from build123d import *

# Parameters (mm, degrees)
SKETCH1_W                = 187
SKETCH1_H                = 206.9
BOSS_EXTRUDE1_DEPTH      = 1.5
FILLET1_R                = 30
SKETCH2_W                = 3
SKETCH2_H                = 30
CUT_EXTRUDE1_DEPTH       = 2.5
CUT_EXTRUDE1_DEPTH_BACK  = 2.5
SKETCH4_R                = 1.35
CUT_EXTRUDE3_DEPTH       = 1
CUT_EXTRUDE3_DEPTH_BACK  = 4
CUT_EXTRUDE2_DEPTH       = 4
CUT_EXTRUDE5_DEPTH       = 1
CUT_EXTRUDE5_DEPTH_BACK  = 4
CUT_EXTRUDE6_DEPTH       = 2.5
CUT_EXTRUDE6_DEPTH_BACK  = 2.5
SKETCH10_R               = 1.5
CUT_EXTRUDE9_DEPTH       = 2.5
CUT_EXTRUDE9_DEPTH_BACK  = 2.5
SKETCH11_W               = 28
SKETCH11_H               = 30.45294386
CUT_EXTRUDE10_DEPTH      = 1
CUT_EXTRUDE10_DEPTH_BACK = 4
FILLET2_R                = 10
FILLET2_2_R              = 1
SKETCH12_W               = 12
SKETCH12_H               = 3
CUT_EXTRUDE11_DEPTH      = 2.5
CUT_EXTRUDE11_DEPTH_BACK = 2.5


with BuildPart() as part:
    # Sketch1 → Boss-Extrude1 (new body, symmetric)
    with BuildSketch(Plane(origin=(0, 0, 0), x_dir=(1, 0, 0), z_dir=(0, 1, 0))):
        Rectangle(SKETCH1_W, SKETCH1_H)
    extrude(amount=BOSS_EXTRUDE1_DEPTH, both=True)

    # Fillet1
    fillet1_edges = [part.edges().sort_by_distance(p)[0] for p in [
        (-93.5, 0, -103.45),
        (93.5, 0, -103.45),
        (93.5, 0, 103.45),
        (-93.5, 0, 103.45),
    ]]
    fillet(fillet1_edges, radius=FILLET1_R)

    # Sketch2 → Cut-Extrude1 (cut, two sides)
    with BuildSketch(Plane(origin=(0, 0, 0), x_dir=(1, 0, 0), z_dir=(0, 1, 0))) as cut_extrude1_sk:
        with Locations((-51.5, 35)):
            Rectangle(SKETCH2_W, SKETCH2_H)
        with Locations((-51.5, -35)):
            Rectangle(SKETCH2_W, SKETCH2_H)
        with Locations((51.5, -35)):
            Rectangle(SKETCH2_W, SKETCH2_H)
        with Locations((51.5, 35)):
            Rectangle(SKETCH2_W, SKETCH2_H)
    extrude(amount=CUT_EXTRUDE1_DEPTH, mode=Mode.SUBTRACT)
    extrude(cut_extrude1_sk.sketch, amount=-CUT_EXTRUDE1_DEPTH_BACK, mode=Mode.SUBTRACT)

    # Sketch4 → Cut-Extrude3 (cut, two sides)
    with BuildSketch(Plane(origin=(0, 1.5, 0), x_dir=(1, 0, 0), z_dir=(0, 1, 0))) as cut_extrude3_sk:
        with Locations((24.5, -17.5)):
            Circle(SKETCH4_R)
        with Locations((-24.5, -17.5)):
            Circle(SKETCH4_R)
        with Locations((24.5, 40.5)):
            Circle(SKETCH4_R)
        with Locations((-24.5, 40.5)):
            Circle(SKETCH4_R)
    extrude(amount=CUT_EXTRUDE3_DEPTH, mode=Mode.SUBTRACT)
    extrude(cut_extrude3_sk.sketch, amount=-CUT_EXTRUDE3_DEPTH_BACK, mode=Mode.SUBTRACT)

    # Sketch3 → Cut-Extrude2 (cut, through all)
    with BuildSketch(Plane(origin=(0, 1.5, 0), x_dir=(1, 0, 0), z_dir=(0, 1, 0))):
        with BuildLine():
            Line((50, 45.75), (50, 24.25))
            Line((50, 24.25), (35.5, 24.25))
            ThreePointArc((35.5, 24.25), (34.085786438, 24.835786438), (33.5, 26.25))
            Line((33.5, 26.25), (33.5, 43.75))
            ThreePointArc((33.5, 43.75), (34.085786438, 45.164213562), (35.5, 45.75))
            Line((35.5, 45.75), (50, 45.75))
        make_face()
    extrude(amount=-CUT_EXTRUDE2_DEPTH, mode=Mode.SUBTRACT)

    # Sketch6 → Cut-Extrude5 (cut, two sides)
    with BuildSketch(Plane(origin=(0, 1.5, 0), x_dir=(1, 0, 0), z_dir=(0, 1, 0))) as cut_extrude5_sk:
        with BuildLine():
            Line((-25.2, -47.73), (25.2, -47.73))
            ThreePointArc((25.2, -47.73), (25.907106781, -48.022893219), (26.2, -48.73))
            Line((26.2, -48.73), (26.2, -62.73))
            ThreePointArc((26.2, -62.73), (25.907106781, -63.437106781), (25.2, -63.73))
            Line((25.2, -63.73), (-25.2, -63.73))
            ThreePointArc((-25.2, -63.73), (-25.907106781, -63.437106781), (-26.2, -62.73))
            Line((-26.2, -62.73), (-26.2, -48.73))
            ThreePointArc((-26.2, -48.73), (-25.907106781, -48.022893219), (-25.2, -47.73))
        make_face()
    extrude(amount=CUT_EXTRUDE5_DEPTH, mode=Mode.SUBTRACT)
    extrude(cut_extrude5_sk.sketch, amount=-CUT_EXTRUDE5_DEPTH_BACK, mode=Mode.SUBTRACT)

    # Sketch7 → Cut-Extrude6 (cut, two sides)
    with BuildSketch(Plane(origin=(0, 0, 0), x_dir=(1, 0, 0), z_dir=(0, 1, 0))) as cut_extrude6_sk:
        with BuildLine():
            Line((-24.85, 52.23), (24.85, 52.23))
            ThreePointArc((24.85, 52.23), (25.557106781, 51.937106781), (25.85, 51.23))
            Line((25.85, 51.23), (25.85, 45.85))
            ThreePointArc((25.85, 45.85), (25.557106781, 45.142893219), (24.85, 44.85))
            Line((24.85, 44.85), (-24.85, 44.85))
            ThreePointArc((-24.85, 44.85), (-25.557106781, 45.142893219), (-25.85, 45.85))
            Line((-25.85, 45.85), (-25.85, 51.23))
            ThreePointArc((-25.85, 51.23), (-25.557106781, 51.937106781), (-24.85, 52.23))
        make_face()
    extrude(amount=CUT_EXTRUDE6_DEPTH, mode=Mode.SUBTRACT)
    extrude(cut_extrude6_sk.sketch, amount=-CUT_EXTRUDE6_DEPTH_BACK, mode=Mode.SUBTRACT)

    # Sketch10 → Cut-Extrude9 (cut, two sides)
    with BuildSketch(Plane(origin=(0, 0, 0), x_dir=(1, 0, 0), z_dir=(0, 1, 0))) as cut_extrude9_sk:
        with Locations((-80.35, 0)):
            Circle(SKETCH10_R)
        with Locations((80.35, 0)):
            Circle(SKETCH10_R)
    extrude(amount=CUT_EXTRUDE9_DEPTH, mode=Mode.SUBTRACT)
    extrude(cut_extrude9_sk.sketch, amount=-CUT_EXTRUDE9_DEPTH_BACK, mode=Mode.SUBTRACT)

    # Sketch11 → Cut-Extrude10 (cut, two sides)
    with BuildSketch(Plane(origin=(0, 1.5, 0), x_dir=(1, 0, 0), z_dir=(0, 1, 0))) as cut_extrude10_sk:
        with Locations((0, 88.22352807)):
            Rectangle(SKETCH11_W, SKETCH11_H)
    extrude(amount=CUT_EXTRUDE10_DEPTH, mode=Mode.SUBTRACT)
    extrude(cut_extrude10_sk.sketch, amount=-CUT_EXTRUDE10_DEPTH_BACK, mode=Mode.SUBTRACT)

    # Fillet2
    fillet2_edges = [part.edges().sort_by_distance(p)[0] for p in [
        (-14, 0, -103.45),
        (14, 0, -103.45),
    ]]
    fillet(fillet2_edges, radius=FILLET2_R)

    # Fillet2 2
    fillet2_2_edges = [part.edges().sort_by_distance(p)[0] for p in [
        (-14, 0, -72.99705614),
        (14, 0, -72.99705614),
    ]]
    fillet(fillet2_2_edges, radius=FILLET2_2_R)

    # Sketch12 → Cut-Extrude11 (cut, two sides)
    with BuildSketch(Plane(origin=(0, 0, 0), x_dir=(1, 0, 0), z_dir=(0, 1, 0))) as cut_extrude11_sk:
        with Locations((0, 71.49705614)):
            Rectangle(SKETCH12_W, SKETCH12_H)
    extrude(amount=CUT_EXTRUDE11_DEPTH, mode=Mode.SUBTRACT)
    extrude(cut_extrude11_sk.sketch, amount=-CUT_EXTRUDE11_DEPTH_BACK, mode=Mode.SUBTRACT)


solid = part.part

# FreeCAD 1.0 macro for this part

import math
import FreeCAD as App
import Part
import Sketcher

V = App.Vector


def edges_at(feature, points):
    """Names of the edges that pass closest to the given points."""
    edges = feature.Shape.Edges
    near = lambda p: min(range(len(edges)), key=lambda i: edges[i].distToShape(Part.Vertex(*p))[0])
    return sorted({f"Edge{near(p) + 1}" for p in points})


def add_polygon(sketch, points):
    """Adds a closed chain of lines whose ends are joined by coincident constraints."""
    first, n = sketch.GeometryCount, len(points)
    for a, b in zip(points, points[1:] + points[:1]):
        sketch.addGeometry(Part.LineSegment(App.Vector(*a, 0), App.Vector(*b, 0)), False)
    for i in range(n):
        sketch.addConstraint(Sketcher.Constraint("Coincident", first + i, 2, first + (i + 1) % n, 1))

doc = App.newDocument("Part")
body = doc.addObject("PartDesign::Body", "Body")

sketch1 = body.newObject("Sketcher::SketchObject", "Sketch")
sketch1.AttachmentSupport = (doc.getObject("XZ_Plane"), [""])
sketch1.MapMode = "FlatFace"
add_polygon(sketch1, [(-94, -103), (-94, 103), (94, 103), (94, -103)])
sketch1.addConstraint([
    Sketcher.Constraint("Vertical", 0),
    Sketcher.Constraint("Horizontal", 1),
    Sketcher.Constraint("Vertical", 2),
    Sketcher.Constraint("Horizontal", 3),
    Sketcher.Constraint("Symmetric", 0, 2, 2, 2, -1, 1),
    Sketcher.Constraint("DistanceX", 1, 1, 1, 2, 187.0),
    Sketcher.Constraint("DistanceY", 0, 1, 0, 2, 206.9),
])
pad1 = body.newObject("PartDesign::Pad", "Pad")
pad1.Profile = sketch1
pad1.Length = 3
pad1.Midplane = True
doc.recompute()

fillet = body.newObject("PartDesign::Fillet", "Fillet")
fillet.Base = (pad1, edges_at(pad1, [
    (-93.5, 0, -103.45),
    (93.5, 0, -103.45),
    (93.5, 0, 103.45),
    (-93.5, 0, 103.45),
]))
fillet.Radius = 30

sketch2 = body.newObject("Sketcher::SketchObject", "Sketch001")
sketch2.AttachmentSupport = (doc.getObject("XZ_Plane"), [""])
sketch2.MapMode = "FlatFace"
add_polygon(sketch2, [(-53, -50), (-53, -20), (-50, -20), (-50, -50)])
add_polygon(sketch2, [(-53, 20), (-53, 50), (-50, 50), (-50, 20)])
add_polygon(sketch2, [(50, 20), (50, 50), (53, 50), (53, 20)])
add_polygon(sketch2, [(50, -50), (50, -20), (53, -20), (53, -50)])
sketch2.addConstraint([
    Sketcher.Constraint("Vertical", 0),
    Sketcher.Constraint("Horizontal", 1),
    Sketcher.Constraint("Vertical", 2),
    Sketcher.Constraint("Horizontal", 3),
    Sketcher.Constraint("Vertical", 4),
    Sketcher.Constraint("Horizontal", 5),
    Sketcher.Constraint("Vertical", 6),
    Sketcher.Constraint("Horizontal", 7),
    Sketcher.Constraint("Vertical", 8),
    Sketcher.Constraint("Horizontal", 9),
    Sketcher.Constraint("Vertical", 10),
    Sketcher.Constraint("Horizontal", 11),
    Sketcher.Constraint("Vertical", 12),
    Sketcher.Constraint("Horizontal", 13),
    Sketcher.Constraint("Vertical", 14),
    Sketcher.Constraint("Horizontal", 15),
    Sketcher.Constraint("Symmetric", 2, 2, 8, 2, -1, 1),
    Sketcher.Constraint("Symmetric", 0, 2, 10, 2, -1, 1),
    Sketcher.Constraint("Symmetric", 6, 2, 12, 2, -1, 1),
    Sketcher.Constraint("Symmetric", 4, 2, 14, 2, -1, 1),
    Sketcher.Constraint("Symmetric", 5, 2, 8, 2, -2),
    Sketcher.Constraint("Symmetric", 7, 2, 10, 2, -2),
    Sketcher.Constraint("DistanceX", 1, 1, 1, 2, 3.0),
    Sketcher.Constraint("DistanceY", 0, 1, 0, 2, 30.0),
    Sketcher.Constraint("DistanceX", 0, 2, -1, 1, 53.0),
    Sketcher.Constraint("DistanceY", 0, 2, -1, 1, 20.0),
])
pocket1 = body.newObject("PartDesign::Pocket", "Pocket")
pocket1.Profile = sketch2
pocket1.Type = "ThroughAll"
pocket1.Midplane = True

sketch3 = body.newObject("Sketcher::SketchObject", "Sketch002")
sketch3.AttachmentSupport = (doc.getObject("XZ_Plane"), [""])
sketch3.MapMode = "FlatFace"
sketch3.AttachmentOffset = App.Placement(V(0, 0, -1.5), App.Rotation())
sketch3.addGeometry([
    Part.Circle(V(24.5, 17.5, 0), V(0, 0, 1), 1.4),
    Part.Circle(V(-24.5, 17.5, 0), V(0, 0, 1), 1.4),
    Part.Circle(V(24.5, -40.5, 0), V(0, 0, 1), 1.4),
    Part.Circle(V(-24.5, -40.5, 0), V(0, 0, 1), 1.4),
], False)
sketch3.addConstraint([
    Sketcher.Constraint("Equal", 0, 1),
    Sketcher.Constraint("Equal", 1, 2),
    Sketcher.Constraint("Equal", 2, 3),
    Sketcher.Constraint("Symmetric", 0, 3, 1, 3, -2),
    Sketcher.Constraint("Symmetric", 2, 3, 3, 3, -2),
    Sketcher.Constraint("Vertical", 0, 3, 2, 3),
    Sketcher.Constraint("Diameter", 0, 2.7),
    Sketcher.Constraint("DistanceX", 1, 3, 0, 3, 49.0),
    Sketcher.Constraint("DistanceY", 2, 3, 0, 3, 58.0),
    Sketcher.Constraint("DistanceY", -1, 1, 0, 3, 17.5),
])
pocket2 = body.newObject("PartDesign::Pocket", "Pocket001")
pocket2.Profile = sketch3
pocket2.Type = "ThroughAll"
pocket2.Midplane = True

sketch4 = body.newObject("Sketcher::SketchObject", "Sketch003")
sketch4.AttachmentSupport = (doc.getObject("XZ_Plane"), [""])
sketch4.MapMode = "FlatFace"
sketch4.AttachmentOffset = App.Placement(V(0, 0, -1.5), App.Rotation())
sketch4.addGeometry([
    Part.LineSegment(V(50, -24.2, 0), V(50, -45.8, 0)),
    Part.LineSegment(V(50, -45.8, 0), V(35.5, -45.8, 0)),
    Part.ArcOfCircle(Part.Circle(V(35.5, -43.7, 0), V(0, 0, 1), 2), math.radians(-180), math.radians(-90)),
    Part.LineSegment(V(33.5, -43.8, 0), V(33.5, -26.2, 0)),
    Part.ArcOfCircle(Part.Circle(V(35.5, -26.3, 0), V(0, 0, 1), 2), math.radians(90), math.radians(180)),
    Part.LineSegment(V(35.5, -24.2, 0), V(50, -24.2, 0)),
], False)
sketch4.addConstraint([
    Sketcher.Constraint("Coincident", 0, 2, 1, 1),
    Sketcher.Constraint("Tangent", 1, 2, 2, 2),
    Sketcher.Constraint("Tangent", 2, 1, 3, 1),
    Sketcher.Constraint("Tangent", 3, 2, 4, 2),
    Sketcher.Constraint("Tangent", 4, 1, 5, 1),
    Sketcher.Constraint("Coincident", 5, 2, 0, 1),
    Sketcher.Constraint("Vertical", 0),
    Sketcher.Constraint("Horizontal", 1),
    Sketcher.Constraint("Vertical", 3),
    Sketcher.Constraint("Horizontal", 5),
    Sketcher.Constraint("Equal", 2, 4),
    Sketcher.Constraint("Radius", 2, 2.0),
    Sketcher.Constraint("DistanceX", 1, 2, 1, 1, 14.5),
    Sketcher.Constraint("DistanceY", 0, 2, 0, 1, 21.5),
    Sketcher.Constraint("DistanceX", -1, 1, 0, 2, 50.0),
    Sketcher.Constraint("DistanceY", 2, 3, -1, 1, 43.75),
])
pocket3 = body.newObject("PartDesign::Pocket", "Pocket002")
pocket3.Profile = sketch4
pocket3.Type = "ThroughAll"
pocket3.Reversed = True

sketch5 = body.newObject("Sketcher::SketchObject", "Sketch004")
sketch5.AttachmentSupport = (doc.getObject("XZ_Plane"), [""])
sketch5.MapMode = "FlatFace"
sketch5.AttachmentOffset = App.Placement(V(0, 0, -1.5), App.Rotation())
sketch5.addGeometry([
    Part.LineSegment(V(25.2, 47.7, 0), V(-25.2, 47.7, 0)),
    Part.ArcOfCircle(Part.Circle(V(-25.2, 48.7, 0), V(0, 0, 1), 1), math.radians(-180), math.radians(-90)),
    Part.LineSegment(V(-26.2, 48.7, 0), V(-26.2, 62.7, 0)),
    Part.ArcOfCircle(Part.Circle(V(-25.2, 62.7, 0), V(0, 0, 1), 1), math.radians(90), math.radians(180)),
    Part.LineSegment(V(-25.2, 63.7, 0), V(25.2, 63.7, 0)),
    Part.ArcOfCircle(Part.Circle(V(25.2, 62.7, 0), V(0, 0, 1), 1), math.radians(0), math.radians(90)),
    Part.LineSegment(V(26.2, 62.7, 0), V(26.2, 48.7, 0)),
    Part.ArcOfCircle(Part.Circle(V(25.2, 48.7, 0), V(0, 0, 1), 1), math.radians(-90), math.radians(0)),
], False)
sketch5.addConstraint([
    Sketcher.Constraint("Tangent", 0, 2, 1, 2),
    Sketcher.Constraint("Tangent", 1, 1, 2, 1),
    Sketcher.Constraint("Tangent", 2, 2, 3, 2),
    Sketcher.Constraint("Tangent", 3, 1, 4, 1),
    Sketcher.Constraint("Tangent", 4, 2, 5, 2),
    Sketcher.Constraint("Tangent", 5, 1, 6, 1),
    Sketcher.Constraint("Tangent", 6, 2, 7, 2),
    Sketcher.Constraint("Tangent", 7, 1, 0, 1),
    Sketcher.Constraint("Horizontal", 0),
    Sketcher.Constraint("Vertical", 2),
    Sketcher.Constraint("Horizontal", 4),
    Sketcher.Constraint("Vertical", 6),
    Sketcher.Constraint("Equal", 1, 3),
    Sketcher.Constraint("Equal", 3, 5),
    Sketcher.Constraint("Equal", 5, 7),
    Sketcher.Constraint("Radius", 1, 1.0),
    Sketcher.Constraint("DistanceY", 2, 1, 2, 2, 14.0),
    Sketcher.Constraint("DistanceX", 0, 2, 0, 1, 50.4),
    Sketcher.Constraint("DistanceX", 1, 3, -1, 1, 25.2),
    Sketcher.Constraint("DistanceY", -1, 1, 1, 3, 48.73),
])
pocket4 = body.newObject("PartDesign::Pocket", "Pocket003")
pocket4.Profile = sketch5
pocket4.Type = "ThroughAll"
pocket4.Midplane = True

sketch6 = body.newObject("Sketcher::SketchObject", "Sketch005")
sketch6.AttachmentSupport = (doc.getObject("XZ_Plane"), [""])
sketch6.MapMode = "FlatFace"
sketch6.addGeometry([
    Part.LineSegment(V(24.9, -52.2, 0), V(-24.9, -52.2, 0)),
    Part.ArcOfCircle(Part.Circle(V(-24.8, -51.2, 0), V(0, 0, 1), 1), math.radians(-180), math.radians(-90)),
    Part.LineSegment(V(-25.9, -51.2, 0), V(-25.9, -45.9, 0)),
    Part.ArcOfCircle(Part.Circle(V(-24.8, -45.9, 0), V(0, 0, 1), 1), math.radians(90), math.radians(180)),
    Part.LineSegment(V(-24.9, -44.9, 0), V(24.9, -44.9, 0)),
    Part.ArcOfCircle(Part.Circle(V(24.8, -45.9, 0), V(0, 0, 1), 1), math.radians(0), math.radians(90)),
    Part.LineSegment(V(25.9, -45.9, 0), V(25.9, -51.2, 0)),
    Part.ArcOfCircle(Part.Circle(V(24.8, -51.2, 0), V(0, 0, 1), 1), math.radians(-90), math.radians(0)),
], False)
sketch6.addConstraint([
    Sketcher.Constraint("Tangent", 0, 2, 1, 2),
    Sketcher.Constraint("Tangent", 1, 1, 2, 1),
    Sketcher.Constraint("Tangent", 2, 2, 3, 2),
    Sketcher.Constraint("Tangent", 3, 1, 4, 1),
    Sketcher.Constraint("Tangent", 4, 2, 5, 2),
    Sketcher.Constraint("Tangent", 5, 1, 6, 1),
    Sketcher.Constraint("Tangent", 6, 2, 7, 2),
    Sketcher.Constraint("Tangent", 7, 1, 0, 1),
    Sketcher.Constraint("Horizontal", 0),
    Sketcher.Constraint("Vertical", 2),
    Sketcher.Constraint("Horizontal", 4),
    Sketcher.Constraint("Vertical", 6),
    Sketcher.Constraint("Equal", 1, 3),
    Sketcher.Constraint("Equal", 3, 5),
    Sketcher.Constraint("Equal", 5, 7),
    Sketcher.Constraint("Radius", 1, 1.0),
    Sketcher.Constraint("DistanceX", 0, 2, 0, 1, 49.7),
    Sketcher.Constraint("DistanceY", 2, 1, 2, 2, 5.38),
    Sketcher.Constraint("DistanceX", 1, 3, -1, 1, 24.85),
    Sketcher.Constraint("DistanceY", 1, 3, -1, 1, 51.23),
])
pocket5 = body.newObject("PartDesign::Pocket", "Pocket004")
pocket5.Profile = sketch6
pocket5.Type = "ThroughAll"
pocket5.Midplane = True

sketch7 = body.newObject("Sketcher::SketchObject", "Sketch006")
sketch7.AttachmentSupport = (doc.getObject("XZ_Plane"), [""])
sketch7.MapMode = "FlatFace"
sketch7.addGeometry([
    Part.Circle(V(-80.3, 0, 0), V(0, 0, 1), 1.5),
    Part.Circle(V(80.3, 0, 0), V(0, 0, 1), 1.5),
], False)
sketch7.addConstraint([
    Sketcher.Constraint("Equal", 0, 1),
    Sketcher.Constraint("Symmetric", 0, 3, 1, 3, -1, 1),
    Sketcher.Constraint("PointOnObject", 0, 3, -1),
    Sketcher.Constraint("Diameter", 0, 3.0),
    Sketcher.Constraint("DistanceX", 0, 3, 1, 3, 160.7),
])
pocket6 = body.newObject("PartDesign::Pocket", "Pocket005")
pocket6.Profile = sketch7
pocket6.Type = "ThroughAll"
pocket6.Midplane = True

sketch8 = body.newObject("Sketcher::SketchObject", "Sketch007")
sketch8.AttachmentSupport = (doc.getObject("XZ_Plane"), [""])
sketch8.MapMode = "FlatFace"
sketch8.AttachmentOffset = App.Placement(V(0, 0, -1.5), App.Rotation())
add_polygon(sketch8, [(-14, -103), (-14, -73), (14, -73), (14, -103)])
sketch8.addConstraint([
    Sketcher.Constraint("Vertical", 0),
    Sketcher.Constraint("Horizontal", 1),
    Sketcher.Constraint("Vertical", 2),
    Sketcher.Constraint("Horizontal", 3),
    Sketcher.Constraint("DistanceX", 1, 1, 1, 2, 28.0),
    Sketcher.Constraint("DistanceX", 0, 2, -1, 1, 14.0),
    Sketcher.Constraint("DistanceY", 2, 2, -1, 1, 103.45),
    Sketcher.Constraint("DistanceY", 0, 1, 0, 2, 30.452944),
])
pocket7 = body.newObject("PartDesign::Pocket", "Pocket006")
pocket7.Profile = sketch8
pocket7.Type = "ThroughAll"
pocket7.Midplane = True
doc.recompute()

fillet2 = body.newObject("PartDesign::Fillet", "Fillet001")
fillet2.Base = (pocket7, edges_at(pocket7, [(-14, 0, -103.45), (14, 0, -103.45)]))
fillet2.Radius = 10
doc.recompute()

fillet3 = body.newObject("PartDesign::Fillet", "Fillet002")
fillet3.Base = (fillet2, edges_at(fillet2, [(-14, 0, -72.997), (14, 0, -72.997)]))
fillet3.Radius = 1

sketch9 = body.newObject("Sketcher::SketchObject", "Sketch008")
sketch9.AttachmentSupport = (doc.getObject("XZ_Plane"), [""])
sketch9.MapMode = "FlatFace"
add_polygon(sketch9, [(-6, -73), (-6, -70), (6, -70), (6, -73)])
sketch9.addConstraint([
    Sketcher.Constraint("Vertical", 0),
    Sketcher.Constraint("Horizontal", 1),
    Sketcher.Constraint("Vertical", 2),
    Sketcher.Constraint("Horizontal", 3),
    Sketcher.Constraint("DistanceX", 1, 1, 1, 2, 12.0),
    Sketcher.Constraint("DistanceY", 0, 1, 0, 2, 3.0),
    Sketcher.Constraint("DistanceX", 0, 2, -1, 1, 6.0),
    Sketcher.Constraint("DistanceY", 0, 2, -1, 1, 69.997056),
])
pocket8 = body.newObject("PartDesign::Pocket", "Pocket007")
pocket8.Profile = sketch9
pocket8.Type = "ThroughAll"
pocket8.Midplane = True

doc.recompute()
